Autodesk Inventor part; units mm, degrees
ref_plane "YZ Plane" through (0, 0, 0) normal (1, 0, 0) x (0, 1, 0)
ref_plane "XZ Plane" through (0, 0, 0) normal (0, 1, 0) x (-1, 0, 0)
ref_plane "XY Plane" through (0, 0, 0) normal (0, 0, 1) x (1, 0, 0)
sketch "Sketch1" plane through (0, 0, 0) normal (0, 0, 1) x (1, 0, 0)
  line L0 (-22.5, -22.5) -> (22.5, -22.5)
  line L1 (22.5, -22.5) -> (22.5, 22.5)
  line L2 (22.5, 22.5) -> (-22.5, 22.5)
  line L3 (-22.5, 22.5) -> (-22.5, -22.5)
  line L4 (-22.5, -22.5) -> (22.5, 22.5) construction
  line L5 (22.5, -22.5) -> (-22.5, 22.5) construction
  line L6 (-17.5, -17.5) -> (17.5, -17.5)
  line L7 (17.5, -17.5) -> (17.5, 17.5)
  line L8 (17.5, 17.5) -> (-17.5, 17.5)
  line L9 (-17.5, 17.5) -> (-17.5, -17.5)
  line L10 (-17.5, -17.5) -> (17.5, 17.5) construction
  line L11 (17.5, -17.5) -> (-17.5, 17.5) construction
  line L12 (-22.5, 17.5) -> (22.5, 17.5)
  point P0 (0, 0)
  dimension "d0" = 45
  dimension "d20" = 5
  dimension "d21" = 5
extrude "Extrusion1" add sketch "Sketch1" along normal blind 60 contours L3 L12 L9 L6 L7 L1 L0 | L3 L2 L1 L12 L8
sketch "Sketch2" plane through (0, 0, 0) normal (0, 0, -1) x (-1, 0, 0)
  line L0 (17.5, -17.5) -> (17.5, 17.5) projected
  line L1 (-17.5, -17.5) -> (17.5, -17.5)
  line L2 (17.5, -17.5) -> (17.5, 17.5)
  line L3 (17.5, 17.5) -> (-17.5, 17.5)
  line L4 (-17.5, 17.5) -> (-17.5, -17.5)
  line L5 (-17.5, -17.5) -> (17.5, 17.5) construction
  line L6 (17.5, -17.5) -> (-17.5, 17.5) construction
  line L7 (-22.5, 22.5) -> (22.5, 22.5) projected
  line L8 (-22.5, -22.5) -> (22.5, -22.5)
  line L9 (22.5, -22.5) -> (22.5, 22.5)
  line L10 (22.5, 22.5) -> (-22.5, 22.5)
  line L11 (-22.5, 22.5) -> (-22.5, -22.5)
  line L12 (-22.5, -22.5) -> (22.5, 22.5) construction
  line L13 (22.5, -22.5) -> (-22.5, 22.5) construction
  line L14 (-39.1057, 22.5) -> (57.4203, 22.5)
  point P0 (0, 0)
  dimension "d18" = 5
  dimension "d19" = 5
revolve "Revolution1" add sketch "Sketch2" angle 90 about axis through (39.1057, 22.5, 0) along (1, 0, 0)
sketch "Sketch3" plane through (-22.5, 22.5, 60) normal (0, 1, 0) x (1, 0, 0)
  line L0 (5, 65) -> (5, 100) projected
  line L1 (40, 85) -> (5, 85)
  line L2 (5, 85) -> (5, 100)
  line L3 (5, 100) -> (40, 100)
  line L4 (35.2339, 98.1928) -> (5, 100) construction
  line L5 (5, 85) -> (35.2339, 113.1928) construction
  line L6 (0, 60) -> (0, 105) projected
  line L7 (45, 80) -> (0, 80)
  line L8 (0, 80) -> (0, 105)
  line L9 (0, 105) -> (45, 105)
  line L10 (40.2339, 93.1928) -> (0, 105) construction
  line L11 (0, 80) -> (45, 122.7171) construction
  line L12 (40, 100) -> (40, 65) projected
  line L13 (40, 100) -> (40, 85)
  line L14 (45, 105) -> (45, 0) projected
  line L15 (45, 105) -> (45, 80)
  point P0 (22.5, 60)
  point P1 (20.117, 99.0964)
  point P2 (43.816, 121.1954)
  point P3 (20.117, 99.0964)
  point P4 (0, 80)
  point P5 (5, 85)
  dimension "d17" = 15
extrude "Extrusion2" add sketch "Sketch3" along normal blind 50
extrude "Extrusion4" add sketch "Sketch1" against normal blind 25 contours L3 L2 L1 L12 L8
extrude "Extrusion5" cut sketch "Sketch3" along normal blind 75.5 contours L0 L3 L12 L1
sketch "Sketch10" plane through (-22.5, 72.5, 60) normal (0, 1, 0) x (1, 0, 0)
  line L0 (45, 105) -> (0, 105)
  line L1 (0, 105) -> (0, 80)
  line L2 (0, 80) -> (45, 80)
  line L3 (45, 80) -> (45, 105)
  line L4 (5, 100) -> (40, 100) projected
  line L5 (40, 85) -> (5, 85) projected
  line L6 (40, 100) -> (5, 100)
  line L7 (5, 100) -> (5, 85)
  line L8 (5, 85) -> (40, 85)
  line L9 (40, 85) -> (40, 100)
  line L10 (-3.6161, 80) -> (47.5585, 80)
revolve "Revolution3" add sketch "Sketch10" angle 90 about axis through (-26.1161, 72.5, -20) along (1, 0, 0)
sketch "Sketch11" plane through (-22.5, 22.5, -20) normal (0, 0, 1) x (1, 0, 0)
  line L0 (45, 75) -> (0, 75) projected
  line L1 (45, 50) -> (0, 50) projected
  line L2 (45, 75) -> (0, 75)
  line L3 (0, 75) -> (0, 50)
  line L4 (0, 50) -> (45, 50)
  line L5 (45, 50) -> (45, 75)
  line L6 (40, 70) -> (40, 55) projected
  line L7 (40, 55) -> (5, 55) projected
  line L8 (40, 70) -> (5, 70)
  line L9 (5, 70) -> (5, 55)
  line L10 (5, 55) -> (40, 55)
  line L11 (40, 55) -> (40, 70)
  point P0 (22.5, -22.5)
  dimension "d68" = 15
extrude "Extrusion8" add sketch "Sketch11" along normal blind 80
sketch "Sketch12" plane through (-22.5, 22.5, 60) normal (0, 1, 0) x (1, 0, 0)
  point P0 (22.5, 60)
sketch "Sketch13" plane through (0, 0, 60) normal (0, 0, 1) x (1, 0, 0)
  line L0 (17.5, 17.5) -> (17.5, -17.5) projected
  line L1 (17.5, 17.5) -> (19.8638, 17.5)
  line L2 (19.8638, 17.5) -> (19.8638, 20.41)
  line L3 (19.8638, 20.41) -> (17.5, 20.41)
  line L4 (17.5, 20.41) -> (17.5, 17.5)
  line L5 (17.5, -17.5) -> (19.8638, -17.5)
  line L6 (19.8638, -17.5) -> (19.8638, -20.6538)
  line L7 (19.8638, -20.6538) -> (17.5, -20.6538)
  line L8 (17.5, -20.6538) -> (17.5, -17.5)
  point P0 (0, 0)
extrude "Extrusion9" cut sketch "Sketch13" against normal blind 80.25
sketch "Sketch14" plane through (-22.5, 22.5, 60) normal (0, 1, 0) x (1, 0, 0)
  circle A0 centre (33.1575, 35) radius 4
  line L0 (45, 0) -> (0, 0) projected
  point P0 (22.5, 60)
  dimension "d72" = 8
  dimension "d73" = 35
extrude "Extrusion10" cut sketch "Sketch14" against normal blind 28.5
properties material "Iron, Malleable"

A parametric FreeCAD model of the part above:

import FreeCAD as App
import Part
import Sketcher

V = App.Vector
Q = App.Units.Quantity

doc = App.newDocument("Part")
body = doc.addObject("PartDesign::Body", "Body")

# Sketch on XY plane
sketch1 = doc.addObject("Sketcher::SketchObject", "Sketch")
body.addObject(sketch1)
sketch1.AttachmentSupport = (doc.XY_Plane, [""])
sketch1.MapMode = "FlatFace"
sketch1.addGeometry(Part.LineSegment(V(-22, -22, 0), V(22, -22, 0)), False)
sketch1.addGeometry(Part.LineSegment(V(22, -22, 0), V(22, 22, 0)), False)
sketch1.addGeometry(Part.LineSegment(V(22, 22, 0), V(-22, 22, 0)), False)
sketch1.addGeometry(Part.LineSegment(V(-22, 22, 0), V(-22, -22, 0)), False)
sketch1.addGeometry(Part.LineSegment(V(-18, -18, 0), V(-18, 18, 0)), False)
sketch1.addGeometry(Part.LineSegment(V(-18, 18, 0), V(18, 18, 0)), False)
sketch1.addGeometry(Part.LineSegment(V(18, 18, 0), V(18, -18, 0)), False)
sketch1.addGeometry(Part.LineSegment(V(18, -18, 0), V(-18, -18, 0)), False)
sketch1.addConstraint(Sketcher.Constraint("Coincident", 0, 2, 1, 1))
sketch1.addConstraint(Sketcher.Constraint("Coincident", 1, 2, 2, 1))
sketch1.addConstraint(Sketcher.Constraint("Coincident", 2, 2, 3, 1))
sketch1.addConstraint(Sketcher.Constraint("Coincident", 3, 2, 0, 1))
sketch1.addConstraint(Sketcher.Constraint("Coincident", 4, 2, 5, 1))
sketch1.addConstraint(Sketcher.Constraint("Coincident", 5, 2, 6, 1))
sketch1.addConstraint(Sketcher.Constraint("Coincident", 6, 2, 7, 1))
sketch1.addConstraint(Sketcher.Constraint("Coincident", 7, 2, 4, 1))
sketch1.addConstraint(Sketcher.Constraint("Horizontal", 0))
sketch1.addConstraint(Sketcher.Constraint("Vertical", 1))
sketch1.addConstraint(Sketcher.Constraint("Horizontal", 2))
sketch1.addConstraint(Sketcher.Constraint("Vertical", 3))
sketch1.addConstraint(Sketcher.Constraint("Vertical", 4))
sketch1.addConstraint(Sketcher.Constraint("Horizontal", 5))
sketch1.addConstraint(Sketcher.Constraint("Vertical", 6))
sketch1.addConstraint(Sketcher.Constraint("Horizontal", 7))
sketch1.addConstraint(Sketcher.Constraint("Symmetric", 0, 2, 2, 2, -1, 1))
sketch1.addConstraint(Sketcher.Constraint("Symmetric", 4, 2, 6, 2, -1, 1))
sketch1.addConstraint(Sketcher.Constraint("Equal", 2, 1))
sketch1.addConstraint(Sketcher.Constraint("Equal", 7, 4))
sketch1.addConstraint(Sketcher.Constraint("DistanceX", 0, 1, 0, 2, Q("45 mm")))
sketch1.addConstraint(Sketcher.Constraint("DistanceX", 2, 2, 4, 2, Q("5 mm")))
pad1 = doc.addObject("PartDesign::Pad", "Pad")
body.addObject(pad1)
pad1.Profile = sketch1
pad1.Length = 60

# Sketch on XY plane
sketch2 = doc.addObject("Sketcher::SketchObject", "Sketch001")
body.addObject(sketch2)
sketch2.AttachmentSupport = (doc.XY_Plane, [""])
sketch2.MapMode = "FlatFace"
sketch2.addGeometry(Part.LineSegment(V(-22, 22, 0), V(22, 22, 0)), False)
sketch2.addGeometry(Part.LineSegment(V(22, 22, 0), V(22, -22, 0)), False)
sketch2.addGeometry(Part.LineSegment(V(22, -22, 0), V(-22, -22, 0)), False)
sketch2.addGeometry(Part.LineSegment(V(-22, -22, 0), V(-22, 22, 0)), False)
sketch2.addGeometry(Part.LineSegment(V(-18, 18, 0), V(-18, -18, 0)), False)
sketch2.addGeometry(Part.LineSegment(V(-18, -18, 0), V(18, -18, 0)), False)
sketch2.addGeometry(Part.LineSegment(V(18, -18, 0), V(18, 18, 0)), False)
sketch2.addGeometry(Part.LineSegment(V(18, 18, 0), V(-18, 18, 0)), False)
sketch2.addGeometry(Part.LineSegment(V(-22, 22, 0), V(22, 22, 0)), True)  # axis
sketch2.addConstraint(Sketcher.Constraint("Coincident", 0, 2, 1, 1))
sketch2.addConstraint(Sketcher.Constraint("Coincident", 1, 2, 2, 1))
sketch2.addConstraint(Sketcher.Constraint("Coincident", 2, 2, 3, 1))
sketch2.addConstraint(Sketcher.Constraint("Coincident", 3, 2, 0, 1))
sketch2.addConstraint(Sketcher.Constraint("Coincident", 4, 2, 5, 1))
sketch2.addConstraint(Sketcher.Constraint("Coincident", 5, 2, 6, 1))
sketch2.addConstraint(Sketcher.Constraint("Coincident", 6, 2, 7, 1))
sketch2.addConstraint(Sketcher.Constraint("Coincident", 7, 2, 4, 1))
sketch2.addConstraint(Sketcher.Constraint("Horizontal", 0))
sketch2.addConstraint(Sketcher.Constraint("Vertical", 1))
sketch2.addConstraint(Sketcher.Constraint("Horizontal", 2))
sketch2.addConstraint(Sketcher.Constraint("Vertical", 3))
sketch2.addConstraint(Sketcher.Constraint("Vertical", 4))
sketch2.addConstraint(Sketcher.Constraint("Horizontal", 5))
sketch2.addConstraint(Sketcher.Constraint("Vertical", 6))
sketch2.addConstraint(Sketcher.Constraint("Horizontal", 7))
sketch2.addConstraint(Sketcher.Constraint("Horizontal", 8))
sketch2.addConstraint(Sketcher.Constraint("Coincident", 8, 1, 3, 2))
sketch2.addConstraint(Sketcher.Constraint("Symmetric", 0, 2, 2, 2, -1, 1))
sketch2.addConstraint(Sketcher.Constraint("Symmetric", 4, 2, 6, 2, -1, 1))
sketch2.addConstraint(Sketcher.Constraint("Vertical", 1, 2, 8, 2))
sketch2.addConstraint(Sketcher.Constraint("Equal", 8, 1))
sketch2.addConstraint(Sketcher.Constraint("Equal", 7, 4))
sketch2.addConstraint(Sketcher.Constraint("DistanceX", 2, 2, 4, 2, Q("5 mm")))
sketch2.addConstraint(Sketcher.Constraint("DistanceX", 0, 1, 0, 2, Q("45 mm")))
revolution = doc.addObject("PartDesign::Revolution", "Revolution")
body.addObject(revolution)
revolution.Profile = sketch2
revolution.ReferenceAxis = (sketch2, ["Axis0"])
revolution.Angle = 90

# Sketch on XZ plane
sketch3 = doc.addObject("Sketcher::SketchObject", "Sketch002")
body.addObject(sketch3)
sketch3.AttachmentSupport = (doc.XZ_Plane, [""])
sketch3.MapMode = "FlatFace"
sketch3.AttachmentOffset = App.Placement(V(0, 0, -22.5), App.Rotation())
sketch3.addGeometry(Part.LineSegment(V(-22, -20, 0), V(22, -20, 0)), False)
sketch3.addGeometry(Part.LineSegment(V(22, -20, 0), V(22, -45, 0)), False)
sketch3.addGeometry(Part.LineSegment(V(22, -45, 0), V(-22, -45, 0)), False)
sketch3.addGeometry(Part.LineSegment(V(-22, -45, 0), V(-22, -20, 0)), False)
sketch3.addConstraint(Sketcher.Constraint("Coincident", 0, 2, 1, 1))
sketch3.addConstraint(Sketcher.Constraint("Coincident", 1, 2, 2, 1))
sketch3.addConstraint(Sketcher.Constraint("Coincident", 2, 2, 3, 1))
sketch3.addConstraint(Sketcher.Constraint("Coincident", 3, 2, 0, 1))
sketch3.addConstraint(Sketcher.Constraint("Horizontal", 0))
sketch3.addConstraint(Sketcher.Constraint("Vertical", 1))
sketch3.addConstraint(Sketcher.Constraint("Horizontal", 2))
sketch3.addConstraint(Sketcher.Constraint("Vertical", 3))
sketch3.addConstraint(Sketcher.Constraint("DistanceX", 0, 1, 0, 2, Q("45 mm")))
sketch3.addConstraint(Sketcher.Constraint("DistanceY", 1, 2, 1, 1, Q("25 mm")))
sketch3.addConstraint(Sketcher.Constraint("DistanceY", 0, 2, -1, 1, Q("20 mm")))
sketch3.addConstraint(Sketcher.Constraint("DistanceX", -1, 1, 0, 2, Q("22.5 mm")))
pad2 = doc.addObject("PartDesign::Pad", "Pad001")
body.addObject(pad2)
pad2.Profile = sketch3
pad2.Length = 50
pad2.Reversed = True

# Sketch on XY plane
sketch4 = doc.addObject("Sketcher::SketchObject", "Sketch003")
body.addObject(sketch4)
sketch4.AttachmentSupport = (doc.XY_Plane, [""])
sketch4.MapMode = "FlatFace"
sketch4.addGeometry(Part.LineSegment(V(-22, 22, 0), V(-22, 18, 0)), False)
sketch4.addGeometry(Part.LineSegment(V(-22, 18, 0), V(22, 18, 0)), False)
sketch4.addGeometry(Part.LineSegment(V(22, 18, 0), V(22, 22, 0)), False)
sketch4.addGeometry(Part.LineSegment(V(22, 22, 0), V(-22, 22, 0)), False)
sketch4.addConstraint(Sketcher.Constraint("Coincident", 0, 2, 1, 1))
sketch4.addConstraint(Sketcher.Constraint("Coincident", 1, 2, 2, 1))
sketch4.addConstraint(Sketcher.Constraint("Coincident", 2, 2, 3, 1))
sketch4.addConstraint(Sketcher.Constraint("Coincident", 3, 2, 0, 1))
sketch4.addConstraint(Sketcher.Constraint("Vertical", 0))
sketch4.addConstraint(Sketcher.Constraint("Horizontal", 1))
sketch4.addConstraint(Sketcher.Constraint("Vertical", 2))
sketch4.addConstraint(Sketcher.Constraint("Horizontal", 3))
sketch4.addConstraint(Sketcher.Constraint("DistanceX", 1, 1, 1, 2, Q("45 mm")))
sketch4.addConstraint(Sketcher.Constraint("DistanceY", 0, 2, 0, 1, Q("5 mm")))
sketch4.addConstraint(Sketcher.Constraint("DistanceX", 0, 2, -1, 1, Q("22.5 mm")))
sketch4.addConstraint(Sketcher.Constraint("DistanceY", -1, 1, 0, 2, Q("17.5 mm")))
pad3 = doc.addObject("PartDesign::Pad", "Pad002")
body.addObject(pad3)
pad3.Profile = sketch4
pad3.Length = 25
pad3.Reversed = True

# Sketch on XZ plane
sketch5 = doc.addObject("Sketcher::SketchObject", "Sketch004")
body.addObject(sketch5)
sketch5.AttachmentSupport = (doc.XZ_Plane, [""])
sketch5.MapMode = "FlatFace"
sketch5.AttachmentOffset = App.Placement(V(0, 0, -22.5), App.Rotation())
sketch5.addGeometry(Part.LineSegment(V(-18, -40, 0), V(-18, -25, 0)), False)
sketch5.addGeometry(Part.LineSegment(V(-18, -25, 0), V(18, -25, 0)), False)
sketch5.addGeometry(Part.LineSegment(V(18, -25, 0), V(18, -40, 0)), False)
sketch5.addGeometry(Part.LineSegment(V(18, -40, 0), V(-18, -40, 0)), False)
sketch5.addConstraint(Sketcher.Constraint("Coincident", 0, 2, 1, 1))
sketch5.addConstraint(Sketcher.Constraint("Coincident", 1, 2, 2, 1))
sketch5.addConstraint(Sketcher.Constraint("Coincident", 2, 2, 3, 1))
sketch5.addConstraint(Sketcher.Constraint("Coincident", 3, 2, 0, 1))
sketch5.addConstraint(Sketcher.Constraint("Vertical", 0))
sketch5.addConstraint(Sketcher.Constraint("Horizontal", 1))
sketch5.addConstraint(Sketcher.Constraint("Vertical", 2))
sketch5.addConstraint(Sketcher.Constraint("Horizontal", 3))
sketch5.addConstraint(Sketcher.Constraint("DistanceY", 0, 1, 0, 2, Q("15 mm")))
sketch5.addConstraint(Sketcher.Constraint("DistanceX", 1, 1, 1, 2, Q("35 mm")))
sketch5.addConstraint(Sketcher.Constraint("DistanceY", 0, 2, -1, 1, Q("25 mm")))
sketch5.addConstraint(Sketcher.Constraint("DistanceX", 0, 2, -1, 1, Q("17.5 mm")))
pocket1 = doc.addObject("PartDesign::Pocket", "Pocket")
body.addObject(pocket1)
pocket1.Profile = sketch5
pocket1.Length = 75.5

# Sketch on XZ plane
sketch6 = doc.addObject("Sketcher::SketchObject", "Sketch005")
body.addObject(sketch6)
sketch6.AttachmentSupport = (doc.XZ_Plane, [""])
sketch6.MapMode = "FlatFace"
sketch6.AttachmentOffset = App.Placement(V(0, 0, -72.5), App.Rotation())
sketch6.addGeometry(Part.LineSegment(V(22, -20, 0), V(22, -45, 0)), False)
sketch6.addGeometry(Part.LineSegment(V(22, -45, 0), V(-22, -45, 0)), False)
sketch6.addGeometry(Part.LineSegment(V(-22, -45, 0), V(-22, -20, 0)), False)
sketch6.addGeometry(Part.LineSegment(V(-22, -20, 0), V(22, -20, 0)), False)
sketch6.addGeometry(Part.LineSegment(V(-18, -25, 0), V(-18, -40, 0)), False)
sketch6.addGeometry(Part.LineSegment(V(-18, -40, 0), V(18, -40, 0)), False)
sketch6.addGeometry(Part.LineSegment(V(18, -40, 0), V(18, -25, 0)), False)
sketch6.addGeometry(Part.LineSegment(V(18, -25, 0), V(-18, -25, 0)), False)
sketch6.addGeometry(Part.LineSegment(V(-22, -20, 0), V(22, -20, 0)), True)  # axis
sketch6.addConstraint(Sketcher.Constraint("Coincident", 0, 2, 1, 1))
sketch6.addConstraint(Sketcher.Constraint("Coincident", 1, 2, 2, 1))
sketch6.addConstraint(Sketcher.Constraint("Coincident", 2, 2, 3, 1))
sketch6.addConstraint(Sketcher.Constraint("Coincident", 3, 2, 0, 1))
sketch6.addConstraint(Sketcher.Constraint("Coincident", 4, 2, 5, 1))
sketch6.addConstraint(Sketcher.Constraint("Coincident", 5, 2, 6, 1))
sketch6.addConstraint(Sketcher.Constraint("Coincident", 6, 2, 7, 1))
sketch6.addConstraint(Sketcher.Constraint("Coincident", 7, 2, 4, 1))
sketch6.addConstraint(Sketcher.Constraint("Vertical", 0))
sketch6.addConstraint(Sketcher.Constraint("Horizontal", 1))
sketch6.addConstraint(Sketcher.Constraint("Vertical", 2))
sketch6.addConstraint(Sketcher.Constraint("Horizontal", 3))
sketch6.addConstraint(Sketcher.Constraint("Vertical", 4))
sketch6.addConstraint(Sketcher.Constraint("Horizontal", 5))
sketch6.addConstraint(Sketcher.Constraint("Vertical", 6))
sketch6.addConstraint(Sketcher.Constraint("Horizontal", 7))
sketch6.addConstraint(Sketcher.Constraint("Horizontal", 8))
sketch6.addConstraint(Sketcher.Constraint("Coincident", 8, 1, 2, 2))
sketch6.addConstraint(Sketcher.Constraint("Vertical", 0, 2, 8, 2))
sketch6.addConstraint(Sketcher.Constraint("DistanceX", 1, 2, 1, 1, Q("45 mm")))
sketch6.addConstraint(Sketcher.Constraint("DistanceX", 5, 1, 5, 2, Q("35 mm")))
sketch6.addConstraint(Sketcher.Constraint("DistanceY", 0, 2, 0, 1, Q("25 mm")))
sketch6.addConstraint(Sketcher.Constraint("DistanceY", 4, 2, 4, 1, Q("15 mm")))
sketch6.addConstraint(Sketcher.Constraint("DistanceY", 0, 2, -1, 1, Q("45 mm")))
sketch6.addConstraint(Sketcher.Constraint("DistanceY", 4, 2, -1, 1, Q("40 mm")))
sketch6.addConstraint(Sketcher.Constraint("DistanceX", 1, 2, 4, 2, Q("5 mm")))
sketch6.addConstraint(Sketcher.Constraint("DistanceX", -1, 1, 0, 2, Q("22.5 mm")))
revolution2 = doc.addObject("PartDesign::Revolution", "Revolution001")
body.addObject(revolution2)
revolution2.Profile = sketch6
revolution2.ReferenceAxis = (sketch6, ["Axis0"])
revolution2.Angle = 90

# Sketch on XY plane
sketch7 = doc.addObject("Sketcher::SketchObject", "Sketch006")
body.addObject(sketch7)
sketch7.AttachmentSupport = (doc.XY_Plane, [""])
sketch7.MapMode = "FlatFace"
sketch7.AttachmentOffset = App.Placement(V(0, 0, -20), App.Rotation())
sketch7.addGeometry(Part.LineSegment(V(22, 72, 0), V(22, 98, 0)), False)
sketch7.addGeometry(Part.LineSegment(V(22, 98, 0), V(-22, 98, 0)), False)
sketch7.addGeometry(Part.LineSegment(V(-22, 98, 0), V(-22, 72, 0)), False)
sketch7.addGeometry(Part.LineSegment(V(-22, 72, 0), V(22, 72, 0)), False)
sketch7.addGeometry(Part.LineSegment(V(-18, 92, 0), V(18, 92, 0)), False)
sketch7.addGeometry(Part.LineSegment(V(18, 92, 0), V(18, 78, 0)), False)
sketch7.addGeometry(Part.LineSegment(V(18, 78, 0), V(-18, 78, 0)), False)
sketch7.addGeometry(Part.LineSegment(V(-18, 78, 0), V(-18, 92, 0)), False)
sketch7.addConstraint(Sketcher.Constraint("Coincident", 0, 2, 1, 1))
sketch7.addConstraint(Sketcher.Constraint("Coincident", 1, 2, 2, 1))
sketch7.addConstraint(Sketcher.Constraint("Coincident", 2, 2, 3, 1))
sketch7.addConstraint(Sketcher.Constraint("Coincident", 3, 2, 0, 1))
sketch7.addConstraint(Sketcher.Constraint("Coincident", 4, 2, 5, 1))
sketch7.addConstraint(Sketcher.Constraint("Coincident", 5, 2, 6, 1))
sketch7.addConstraint(Sketcher.Constraint("Coincident", 6, 2, 7, 1))
sketch7.addConstraint(Sketcher.Constraint("Coincident", 7, 2, 4, 1))
sketch7.addConstraint(Sketcher.Constraint("Vertical", 0))
sketch7.addConstraint(Sketcher.Constraint("Horizontal", 1))
sketch7.addConstraint(Sketcher.Constraint("Vertical", 2))
sketch7.addConstraint(Sketcher.Constraint("Horizontal", 3))
sketch7.addConstraint(Sketcher.Constraint("Horizontal", 4))
sketch7.addConstraint(Sketcher.Constraint("Vertical", 5))
sketch7.addConstraint(Sketcher.Constraint("Horizontal", 6))
sketch7.addConstraint(Sketcher.Constraint("Vertical", 7))
sketch7.addConstraint(Sketcher.Constraint("DistanceY", 5, 2, 5, 1, Q("15 mm")))
sketch7.addConstraint(Sketcher.Constraint("DistanceX", 1, 2, 1, 1, Q("45 mm")))
sketch7.addConstraint(Sketcher.Constraint("DistanceX", 4, 1, 4, 2, Q("35 mm")))
sketch7.addConstraint(Sketcher.Constraint("DistanceY", 0, 1, 0, 2, Q("25 mm")))
sketch7.addConstraint(Sketcher.Constraint("DistanceX", 4, 2, 0, 2, Q("5 mm")))
sketch7.addConstraint(Sketcher.Constraint("DistanceY", 4, 2, 0, 2, Q("5 mm")))
sketch7.addConstraint(Sketcher.Constraint("DistanceX", -1, 1, 0, 2, Q("22.5 mm")))
sketch7.addConstraint(Sketcher.Constraint("DistanceY", -1, 1, 0, 2, Q("97.5 mm")))
pad4 = doc.addObject("PartDesign::Pad", "Pad003")
body.addObject(pad4)
pad4.Profile = sketch7
pad4.Length = 80

# Sketch on XY plane
sketch8 = doc.addObject("Sketcher::SketchObject", "Sketch007")
body.addObject(sketch8)
sketch8.AttachmentSupport = (doc.XY_Plane, [""])
sketch8.MapMode = "FlatFace"
sketch8.AttachmentOffset = App.Placement(V(0, 0, 60), App.Rotation())
sketch8.addGeometry(Part.LineSegment(V(19.9, -17.5, 0), V(17.5, -17.5, 0)), False)
sketch8.addGeometry(Part.LineSegment(V(17.5, -17.5, 0), V(17.5, -20.7, 0)), False)
sketch8.addGeometry(Part.LineSegment(V(17.5, -20.7, 0), V(19.9, -20.7, 0)), False)
sketch8.addGeometry(Part.LineSegment(V(19.9, -20.7, 0), V(19.9, -17.5, 0)), False)
sketch8.addGeometry(Part.LineSegment(V(17.5, 20.4, 0), V(17.5, 17.5, 0)), False)
sketch8.addGeometry(Part.LineSegment(V(17.5, 17.5, 0), V(19.9, 17.5, 0)), False)
sketch8.addGeometry(Part.LineSegment(V(19.9, 17.5, 0), V(19.9, 20.4, 0)), False)
sketch8.addGeometry(Part.LineSegment(V(19.9, 20.4, 0), V(17.5, 20.4, 0)), False)
sketch8.addConstraint(Sketcher.Constraint("Coincident", 0, 2, 1, 1))
sketch8.addConstraint(Sketcher.Constraint("Coincident", 1, 2, 2, 1))
sketch8.addConstraint(Sketcher.Constraint("Coincident", 2, 2, 3, 1))
sketch8.addConstraint(Sketcher.Constraint("Coincident", 3, 2, 0, 1))
sketch8.addConstraint(Sketcher.Constraint("Coincident", 4, 2, 5, 1))
sketch8.addConstraint(Sketcher.Constraint("Coincident", 5, 2, 6, 1))
sketch8.addConstraint(Sketcher.Constraint("Coincident", 6, 2, 7, 1))
sketch8.addConstraint(Sketcher.Constraint("Coincident", 7, 2, 4, 1))
sketch8.addConstraint(Sketcher.Constraint("Horizontal", 0))
sketch8.addConstraint(Sketcher.Constraint("Vertical", 1))
sketch8.addConstraint(Sketcher.Constraint("Horizontal", 2))
sketch8.addConstraint(Sketcher.Constraint("Vertical", 3))
sketch8.addConstraint(Sketcher.Constraint("Vertical", 4))
sketch8.addConstraint(Sketcher.Constraint("Horizontal", 5))
sketch8.addConstraint(Sketcher.Constraint("Vertical", 6))
sketch8.addConstraint(Sketcher.Constraint("Horizontal", 7))
sketch8.addConstraint(Sketcher.Constraint("Symmetric", 0, 2, 4, 2, -1))
sketch8.addConstraint(Sketcher.Constraint("Vertical", 3, 2, 5, 2))
sketch8.addConstraint(Sketcher.Constraint("DistanceY", 0, 2, 4, 2, Q("35 mm")))
sketch8.addConstraint(Sketcher.Constraint("DistanceY", 4, 2, 4, 1, Q("2.91 mm")))
sketch8.addConstraint(Sketcher.Constraint("DistanceX", -1, 1, 0, 2, Q("17.5 mm")))
sketch8.addConstraint(Sketcher.Constraint("DistanceX", 0, 2, 0, 1, Q("2.3638 mm")))
sketch8.addConstraint(Sketcher.Constraint("DistanceY", 1, 2, 1, 1, Q("3.1538 mm")))
pocket2 = doc.addObject("PartDesign::Pocket", "Pocket001")
body.addObject(pocket2)
pocket2.Profile = sketch8
pocket2.Length = 80.25

# Sketch on XZ plane
sketch9 = doc.addObject("Sketcher::SketchObject", "Sketch008")
body.addObject(sketch9)
sketch9.AttachmentSupport = (doc.XZ_Plane, [""])
sketch9.MapMode = "FlatFace"
sketch9.AttachmentOffset = App.Placement(V(0, 0, -22.5), App.Rotation())
sketch9.addGeometry(Part.Circle(V(10.7, 25, 0), V(0, 0, 1), 4), False)
sketch9.addConstraint(Sketcher.Constraint("Diameter", 0, Q("8 mm")))
sketch9.addConstraint(Sketcher.Constraint("DistanceY", -1, 1, 0, 3, Q("25 mm")))
sketch9.addConstraint(Sketcher.Constraint("DistanceX", -1, 1, 0, 3, Q("10.6575 mm")))
pocket3 = doc.addObject("PartDesign::Pocket", "Pocket002")
body.addObject(pocket3)
pocket3.Profile = sketch9
pocket3.Length = 28.5
pocket3.Reversed = True

doc.recompute()
